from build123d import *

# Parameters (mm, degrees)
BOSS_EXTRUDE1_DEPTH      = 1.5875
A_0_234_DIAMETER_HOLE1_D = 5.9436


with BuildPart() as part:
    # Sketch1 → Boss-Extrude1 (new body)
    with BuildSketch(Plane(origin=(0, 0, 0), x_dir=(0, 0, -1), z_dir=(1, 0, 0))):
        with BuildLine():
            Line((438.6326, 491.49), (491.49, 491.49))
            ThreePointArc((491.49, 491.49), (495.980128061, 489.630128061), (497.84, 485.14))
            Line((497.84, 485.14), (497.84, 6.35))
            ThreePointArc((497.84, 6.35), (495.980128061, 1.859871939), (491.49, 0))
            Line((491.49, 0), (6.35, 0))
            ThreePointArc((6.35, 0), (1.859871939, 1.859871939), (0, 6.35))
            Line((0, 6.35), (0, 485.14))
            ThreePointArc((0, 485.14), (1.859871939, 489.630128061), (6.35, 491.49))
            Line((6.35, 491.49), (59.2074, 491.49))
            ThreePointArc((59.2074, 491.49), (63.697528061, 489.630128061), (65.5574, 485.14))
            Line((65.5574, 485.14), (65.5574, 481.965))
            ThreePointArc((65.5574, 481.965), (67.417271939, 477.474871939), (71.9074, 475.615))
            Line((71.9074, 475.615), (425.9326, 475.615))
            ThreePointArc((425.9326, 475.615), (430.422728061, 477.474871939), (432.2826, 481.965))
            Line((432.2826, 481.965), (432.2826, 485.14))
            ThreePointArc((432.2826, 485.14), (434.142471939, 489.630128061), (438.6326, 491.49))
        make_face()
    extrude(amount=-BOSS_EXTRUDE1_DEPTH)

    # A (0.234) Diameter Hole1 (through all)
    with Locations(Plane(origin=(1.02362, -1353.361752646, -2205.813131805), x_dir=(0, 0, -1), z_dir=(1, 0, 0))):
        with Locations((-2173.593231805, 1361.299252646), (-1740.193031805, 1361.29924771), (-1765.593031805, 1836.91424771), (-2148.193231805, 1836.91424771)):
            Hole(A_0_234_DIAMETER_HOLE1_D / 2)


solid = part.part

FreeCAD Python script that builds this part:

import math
import FreeCAD as App
import Part
import Sketcher
from FreeCAD import Vector
Q = App.Units.Quantity

doc = App.newDocument("Part")
params = doc.addObject("Spreadsheet::Sheet", "Params")
for row, (alias, value) in enumerate([
    ("sketch1_radius", "0.25 in"),
    ("sketch1_height", "19.1 in"),
    ("sketch1_width", "18.85 in"),
    ("sketch1_width2", "0.125 in"),
    ("sketch1_height2", "2.081 in"),
    ("pad1_length", "0.0625 in"),
    ("sketch2_diameter", "0.234 in"),
    ("hole_diameter", "0.234 in"),
], start=1):
    params.set(f"A{row}", alias)
    params.set(f"B{row}", "=" + value)
    params.setAlias(f"B{row}", alias)

body = doc.addObject("PartDesign::Body", "Body")

sketch1 = body.newObject("Sketcher::SketchObject", "Sketch")
sketch1.AttachmentSupport = (doc.getObject("YZ_Plane"), [""])
sketch1.MapMode = "FlatFace"
sketch1.addGeometry(Part.LineSegment(Vector(491.5, -491.5, 0), Vector(491.5, -438.6, 0)), False)
sketch1.addGeometry(Part.ArcOfCircle(Part.Circle(Vector(485.1, -438.6, 0), Vector(0, 0, 1), 6.3), math.radians(0), math.radians(90)), False)
sketch1.addGeometry(Part.LineSegment(Vector(485.1, -432.3, 0), Vector(482, -432.3, 0)), False)
sketch1.addGeometry(Part.ArcOfCircle(Part.Circle(Vector(482, -425.9, 0), Vector(0, 0, 1), 6.3), math.radians(180), math.radians(270)), False)
sketch1.addGeometry(Part.LineSegment(Vector(475.6, -425.9, 0), Vector(475.6, -71.9, 0)), False)
sketch1.addGeometry(Part.ArcOfCircle(Part.Circle(Vector(482, -71.9, 0), Vector(0, 0, 1), 6.3), math.radians(90), math.radians(180)), False)
sketch1.addGeometry(Part.LineSegment(Vector(482, -65.6, 0), Vector(485.1, -65.6, 0)), False)
sketch1.addGeometry(Part.ArcOfCircle(Part.Circle(Vector(485.1, -59.2, 0), Vector(0, 0, 1), 6.3), math.radians(-90), math.radians(0)), False)
sketch1.addGeometry(Part.LineSegment(Vector(491.5, -59.2, 0), Vector(491.5, -6.3, 0)), False)
sketch1.addGeometry(Part.ArcOfCircle(Part.Circle(Vector(485.1, -6.3, 0), Vector(0, 0, 1), 6.3), math.radians(0), math.radians(90)), False)
sketch1.addGeometry(Part.LineSegment(Vector(485.1, 0, 0), Vector(6.3, 0, 0)), False)
sketch1.addGeometry(Part.ArcOfCircle(Part.Circle(Vector(6.3, -6.3, 0), Vector(0, 0, 1), 6.3), math.radians(90), math.radians(180)), False)
sketch1.addGeometry(Part.LineSegment(Vector(0, -6.3, 0), Vector(0, -491.5, 0)), False)
sketch1.addGeometry(Part.ArcOfCircle(Part.Circle(Vector(6.3, -491.5, 0), Vector(0, 0, 1), 6.3), math.radians(180), math.radians(270)), False)
sketch1.addGeometry(Part.LineSegment(Vector(6.3, -497.8, 0), Vector(485.1, -497.8, 0)), False)
sketch1.addGeometry(Part.ArcOfCircle(Part.Circle(Vector(485.1, -491.5, 0), Vector(0, 0, 1), 6.3), math.radians(-90), math.radians(0)), False)
sketch1.addConstraint(Sketcher.Constraint("Tangent", 0, 2, 1, 1))
sketch1.addConstraint(Sketcher.Constraint("Tangent", 1, 2, 2, 1))
sketch1.addConstraint(Sketcher.Constraint("Tangent", 2, 2, 3, 2))
sketch1.addConstraint(Sketcher.Constraint("Tangent", 3, 1, 4, 1))
sketch1.addConstraint(Sketcher.Constraint("Tangent", 4, 2, 5, 2))
sketch1.addConstraint(Sketcher.Constraint("Tangent", 5, 1, 6, 1))
sketch1.addConstraint(Sketcher.Constraint("Tangent", 6, 2, 7, 1))
sketch1.addConstraint(Sketcher.Constraint("Tangent", 7, 2, 8, 1))
sketch1.addConstraint(Sketcher.Constraint("Tangent", 8, 2, 9, 1))
sketch1.addConstraint(Sketcher.Constraint("Tangent", 9, 2, 10, 1))
sketch1.addConstraint(Sketcher.Constraint("Tangent", 10, 2, 11, 1))
sketch1.addConstraint(Sketcher.Constraint("Tangent", 11, 2, 12, 1))
sketch1.addConstraint(Sketcher.Constraint("Tangent", 12, 2, 13, 1))
sketch1.addConstraint(Sketcher.Constraint("Tangent", 13, 2, 14, 1))
sketch1.addConstraint(Sketcher.Constraint("Tangent", 14, 2, 15, 1))
sketch1.addConstraint(Sketcher.Constraint("Tangent", 15, 2, 0, 1))
sketch1.addConstraint(Sketcher.Constraint("Vertical", 0))
sketch1.addConstraint(Sketcher.Constraint("Horizontal", 2))
sketch1.addConstraint(Sketcher.Constraint("Vertical", 4))
sketch1.addConstraint(Sketcher.Constraint("Horizontal", 6))
sketch1.addConstraint(Sketcher.Constraint("Vertical", 8))
sketch1.addConstraint(Sketcher.Constraint("Horizontal", 10))
sketch1.addConstraint(Sketcher.Constraint("Vertical", 12))
sketch1.addConstraint(Sketcher.Constraint("Horizontal", 14))
sketch1.addConstraint(Sketcher.Constraint("Equal", 1, 3))
sketch1.addConstraint(Sketcher.Constraint("Equal", 3, 5))
sketch1.addConstraint(Sketcher.Constraint("Equal", 5, 7))
sketch1.addConstraint(Sketcher.Constraint("Equal", 7, 9))
sketch1.addConstraint(Sketcher.Constraint("Equal", 9, 11))
sketch1.addConstraint(Sketcher.Constraint("Equal", 11, 13))
sketch1.addConstraint(Sketcher.Constraint("Equal", 13, 15))
sketch1.addConstraint(Sketcher.Constraint("PointOnObject", 9, 2, -1))
sketch1.addConstraint(Sketcher.Constraint("PointOnObject", 11, 2, -2))
sketch1.addConstraint(Sketcher.Constraint("Vertical", 1, 3, 7, 3))
sketch1.addConstraint(Sketcher.Constraint("Equal", 0, 8))
sketch1.addConstraint(Sketcher.Constraint("Radius", 1, Q("0.25 in")))
sketch1.addConstraint(Sketcher.Constraint("DistanceY", 12, 2, 12, 1, Q("19.1 in")))
sketch1.addConstraint(Sketcher.Constraint("DistanceX", 10, 2, 10, 1, Q("18.85 in")))
sketch1.addConstraint(Sketcher.Constraint("DistanceX", 2, 2, 2, 1, Q("0.125 in")))
sketch1.addConstraint(Sketcher.Constraint("DistanceY", 0, 1, 0, 2, Q("2.081 in")))
sketch1.setExpression("Constraints[35]", "Params.sketch1_radius")
sketch1.setExpression("Constraints[36]", "Params.sketch1_height")
sketch1.setExpression("Constraints[37]", "Params.sketch1_width")
sketch1.setExpression("Constraints[38]", "Params.sketch1_width2")
sketch1.setExpression("Constraints[39]", "Params.sketch1_height2")
pad1 = body.newObject("PartDesign::Pad", "Pad")
pad1.Profile = sketch1
pad1.setExpression("Length", "Params.pad1_length")
pad1.Reversed = True

sketch2 = body.newObject("Sketcher::SketchObject", "Sketch001")
sketch2.AttachmentSupport = (doc.getObject("YZ_Plane"), [""])
sketch2.MapMode = "FlatFace"
sketch2.AttachmentOffset = App.Placement(Vector(0, 0, 0.0403 * 25.4), App.Rotation())
sketch2.addGeometry(Part.Circle(Vector(7.9, -32.2, 0), Vector(0, 0, 1), 3), False)
sketch2.addGeometry(Part.Circle(Vector(7.9, -465.6, 0), Vector(0, 0, 1), 3), False)
sketch2.addGeometry(Part.Circle(Vector(483.6, -440.2, 0), Vector(0, 0, 1), 3), False)
sketch2.addGeometry(Part.Circle(Vector(483.6, -57.6, 0), Vector(0, 0, 1), 3), False)
sketch2.addConstraint(Sketcher.Constraint("Equal", 0, 1))
sketch2.addConstraint(Sketcher.Constraint("Equal", 1, 2))
sketch2.addConstraint(Sketcher.Constraint("Equal", 2, 3))
sketch2.addConstraint(Sketcher.Constraint("Vertical", 2, 3, 3, 3))
sketch2.addConstraint(Sketcher.Constraint("Diameter", 0, Q("0.234 in")))
sketch2.addConstraint(Sketcher.Constraint("DistanceY", 1, 3, 2, 3, Q("1 in")))
sketch2.addConstraint(Sketcher.Constraint("DistanceY", 3, 3, 0, 3, Q("1 in")))
sketch2.addConstraint(Sketcher.Constraint("DistanceX", -1, 1, 0, 3, Q("0.3125 in")))
sketch2.addConstraint(Sketcher.Constraint("DistanceY", 1, 3, 0, 3, Q("17.063 in")))
sketch2.addConstraint(Sketcher.Constraint("DistanceX", 1, 3, 2, 3, Q("18.725 in")))
sketch2.addConstraint(Sketcher.Constraint("DistanceX", 0, 3, 2, 3, Q("18.7249998 in")))
sketch2.addConstraint(Sketcher.Constraint("DistanceY", 0, 3, -1, 1, Q("1.2685 in")))
sketch2.setExpression("Constraints[4]", "Params.sketch2_diameter")
doc.recompute()
hole = body.newObject("PartDesign::Hole", "Hole")
hole.Profile = sketch2
hole.ThreadType = "None"
hole.setExpression("Diameter", "Params.hole_diameter")
hole.DepthType = "ThroughAll"

doc.recompute()
